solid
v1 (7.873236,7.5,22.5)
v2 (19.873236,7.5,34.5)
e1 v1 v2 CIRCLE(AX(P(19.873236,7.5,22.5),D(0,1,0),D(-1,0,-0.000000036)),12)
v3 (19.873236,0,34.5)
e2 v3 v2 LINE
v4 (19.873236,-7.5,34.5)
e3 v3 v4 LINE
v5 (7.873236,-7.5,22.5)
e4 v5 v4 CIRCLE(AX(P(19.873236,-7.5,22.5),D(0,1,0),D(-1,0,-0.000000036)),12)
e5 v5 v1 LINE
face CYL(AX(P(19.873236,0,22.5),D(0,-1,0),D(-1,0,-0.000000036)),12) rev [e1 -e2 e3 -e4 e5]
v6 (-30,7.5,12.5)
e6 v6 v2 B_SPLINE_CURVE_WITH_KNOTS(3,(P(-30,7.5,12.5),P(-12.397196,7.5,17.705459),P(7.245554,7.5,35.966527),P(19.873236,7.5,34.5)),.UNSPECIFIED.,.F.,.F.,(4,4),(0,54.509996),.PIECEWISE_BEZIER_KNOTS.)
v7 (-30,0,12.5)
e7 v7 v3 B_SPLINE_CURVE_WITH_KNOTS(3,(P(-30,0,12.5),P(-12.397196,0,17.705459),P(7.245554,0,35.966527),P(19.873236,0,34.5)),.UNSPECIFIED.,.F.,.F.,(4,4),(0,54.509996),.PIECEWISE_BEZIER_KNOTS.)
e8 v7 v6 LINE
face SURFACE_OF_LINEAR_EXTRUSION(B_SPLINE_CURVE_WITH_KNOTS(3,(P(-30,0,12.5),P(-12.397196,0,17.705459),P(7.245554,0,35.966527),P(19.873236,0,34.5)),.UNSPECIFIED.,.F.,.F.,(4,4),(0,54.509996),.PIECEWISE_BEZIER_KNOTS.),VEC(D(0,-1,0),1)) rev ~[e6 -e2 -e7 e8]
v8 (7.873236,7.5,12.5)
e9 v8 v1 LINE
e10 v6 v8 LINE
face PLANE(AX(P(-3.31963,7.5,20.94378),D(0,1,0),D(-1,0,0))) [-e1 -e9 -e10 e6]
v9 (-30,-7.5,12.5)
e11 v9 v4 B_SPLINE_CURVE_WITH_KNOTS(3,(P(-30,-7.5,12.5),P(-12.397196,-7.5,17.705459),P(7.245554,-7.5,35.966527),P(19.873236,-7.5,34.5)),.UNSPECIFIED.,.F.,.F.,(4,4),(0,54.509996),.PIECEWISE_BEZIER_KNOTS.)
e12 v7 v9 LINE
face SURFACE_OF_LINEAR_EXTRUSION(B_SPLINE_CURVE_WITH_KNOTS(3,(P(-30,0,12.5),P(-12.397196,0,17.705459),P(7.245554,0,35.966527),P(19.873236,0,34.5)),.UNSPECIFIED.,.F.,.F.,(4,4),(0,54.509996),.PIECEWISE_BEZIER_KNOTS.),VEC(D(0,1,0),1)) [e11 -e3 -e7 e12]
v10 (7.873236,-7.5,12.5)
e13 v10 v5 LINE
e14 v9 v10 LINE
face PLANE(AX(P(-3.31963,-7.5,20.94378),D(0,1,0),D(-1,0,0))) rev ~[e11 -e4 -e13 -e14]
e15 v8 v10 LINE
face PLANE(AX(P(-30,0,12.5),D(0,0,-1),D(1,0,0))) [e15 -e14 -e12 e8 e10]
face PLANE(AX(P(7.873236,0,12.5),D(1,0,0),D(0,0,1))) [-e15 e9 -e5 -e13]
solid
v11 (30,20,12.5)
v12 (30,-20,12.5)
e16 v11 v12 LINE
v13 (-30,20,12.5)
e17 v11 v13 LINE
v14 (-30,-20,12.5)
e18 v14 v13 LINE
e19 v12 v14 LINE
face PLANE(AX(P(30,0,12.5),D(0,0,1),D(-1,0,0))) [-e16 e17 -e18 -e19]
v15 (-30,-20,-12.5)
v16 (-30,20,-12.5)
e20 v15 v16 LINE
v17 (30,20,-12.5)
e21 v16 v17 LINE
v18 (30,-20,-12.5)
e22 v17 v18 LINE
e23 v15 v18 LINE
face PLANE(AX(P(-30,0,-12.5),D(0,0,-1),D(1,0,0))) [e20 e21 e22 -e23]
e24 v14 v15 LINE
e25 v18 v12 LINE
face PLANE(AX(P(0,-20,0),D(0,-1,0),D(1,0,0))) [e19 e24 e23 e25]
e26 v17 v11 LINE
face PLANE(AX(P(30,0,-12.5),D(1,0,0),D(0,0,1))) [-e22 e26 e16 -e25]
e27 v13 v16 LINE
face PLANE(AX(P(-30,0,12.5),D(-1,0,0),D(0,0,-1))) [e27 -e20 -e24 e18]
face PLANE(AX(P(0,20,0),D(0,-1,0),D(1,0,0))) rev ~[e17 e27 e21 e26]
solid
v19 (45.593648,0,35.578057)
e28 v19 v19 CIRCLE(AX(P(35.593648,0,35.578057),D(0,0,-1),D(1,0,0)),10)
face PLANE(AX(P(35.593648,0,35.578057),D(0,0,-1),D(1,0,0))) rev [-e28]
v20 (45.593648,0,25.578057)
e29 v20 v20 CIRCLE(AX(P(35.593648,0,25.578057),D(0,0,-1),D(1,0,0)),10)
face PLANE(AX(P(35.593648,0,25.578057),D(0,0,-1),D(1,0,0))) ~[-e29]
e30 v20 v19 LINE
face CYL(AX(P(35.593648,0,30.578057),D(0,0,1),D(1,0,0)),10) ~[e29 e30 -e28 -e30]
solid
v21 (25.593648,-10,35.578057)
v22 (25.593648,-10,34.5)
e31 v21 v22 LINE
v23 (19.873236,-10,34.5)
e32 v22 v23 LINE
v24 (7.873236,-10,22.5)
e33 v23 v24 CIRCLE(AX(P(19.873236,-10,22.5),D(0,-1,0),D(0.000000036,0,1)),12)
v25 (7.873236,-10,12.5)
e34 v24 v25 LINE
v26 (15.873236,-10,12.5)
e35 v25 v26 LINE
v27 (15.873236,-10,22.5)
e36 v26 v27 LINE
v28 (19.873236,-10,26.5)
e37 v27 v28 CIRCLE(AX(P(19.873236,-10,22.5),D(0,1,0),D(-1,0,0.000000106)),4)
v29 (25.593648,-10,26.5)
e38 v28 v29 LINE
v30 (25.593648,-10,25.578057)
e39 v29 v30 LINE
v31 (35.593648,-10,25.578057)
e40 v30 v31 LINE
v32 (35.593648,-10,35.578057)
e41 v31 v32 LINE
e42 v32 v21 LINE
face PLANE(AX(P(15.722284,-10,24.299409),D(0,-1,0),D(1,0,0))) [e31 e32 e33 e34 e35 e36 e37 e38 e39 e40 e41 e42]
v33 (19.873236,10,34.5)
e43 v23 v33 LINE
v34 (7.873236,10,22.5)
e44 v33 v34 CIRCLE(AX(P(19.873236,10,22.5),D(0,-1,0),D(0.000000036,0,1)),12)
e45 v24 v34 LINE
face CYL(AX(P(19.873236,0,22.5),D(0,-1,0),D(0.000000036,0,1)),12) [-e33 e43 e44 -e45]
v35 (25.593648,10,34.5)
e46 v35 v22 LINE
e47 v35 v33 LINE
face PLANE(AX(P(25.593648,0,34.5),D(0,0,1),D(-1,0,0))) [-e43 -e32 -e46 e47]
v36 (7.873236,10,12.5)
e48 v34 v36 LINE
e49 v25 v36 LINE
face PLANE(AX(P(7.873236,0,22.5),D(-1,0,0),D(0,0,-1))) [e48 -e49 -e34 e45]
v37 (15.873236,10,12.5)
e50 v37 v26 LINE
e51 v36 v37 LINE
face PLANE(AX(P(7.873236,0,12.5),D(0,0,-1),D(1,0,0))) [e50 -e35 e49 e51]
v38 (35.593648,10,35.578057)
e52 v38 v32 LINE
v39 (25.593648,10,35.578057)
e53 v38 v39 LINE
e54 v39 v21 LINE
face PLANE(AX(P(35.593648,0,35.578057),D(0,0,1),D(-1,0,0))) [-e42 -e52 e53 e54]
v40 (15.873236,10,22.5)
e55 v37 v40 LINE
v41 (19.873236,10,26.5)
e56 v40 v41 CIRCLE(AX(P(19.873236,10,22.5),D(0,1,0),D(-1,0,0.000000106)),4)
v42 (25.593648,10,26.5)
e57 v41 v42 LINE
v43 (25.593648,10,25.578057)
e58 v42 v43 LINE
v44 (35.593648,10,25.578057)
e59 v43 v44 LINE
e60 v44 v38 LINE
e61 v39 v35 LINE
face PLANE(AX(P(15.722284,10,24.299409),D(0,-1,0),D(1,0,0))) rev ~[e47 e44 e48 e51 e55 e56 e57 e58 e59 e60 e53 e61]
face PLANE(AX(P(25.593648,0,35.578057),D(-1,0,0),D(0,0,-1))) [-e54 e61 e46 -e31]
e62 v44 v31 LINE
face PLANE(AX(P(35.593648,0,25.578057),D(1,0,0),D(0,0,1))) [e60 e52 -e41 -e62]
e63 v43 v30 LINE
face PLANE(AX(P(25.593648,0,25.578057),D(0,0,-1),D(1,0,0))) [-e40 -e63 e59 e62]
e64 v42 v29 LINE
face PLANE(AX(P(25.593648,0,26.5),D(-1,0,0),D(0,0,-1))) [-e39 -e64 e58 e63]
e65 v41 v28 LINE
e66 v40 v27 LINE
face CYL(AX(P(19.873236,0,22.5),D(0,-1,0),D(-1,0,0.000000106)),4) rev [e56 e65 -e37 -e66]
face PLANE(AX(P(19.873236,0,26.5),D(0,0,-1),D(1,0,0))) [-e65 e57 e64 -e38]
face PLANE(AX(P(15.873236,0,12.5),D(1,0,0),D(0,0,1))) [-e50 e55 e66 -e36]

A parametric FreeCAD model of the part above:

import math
import FreeCAD as App
import Part
import Sketcher
Q = App.Units.Quantity

doc = App.newDocument("Part")
body = doc.addObject("PartDesign::Body", "Body")

# Sketch on XZ plane
sketch1 = body.newObject("Sketcher::SketchObject", "Sketch")
sketch1.AttachmentSupport = (doc.getObject("XZ_Plane"), [""])
sketch1.MapMode = "FlatFace"
sketch1.addGeometry(Part.LineSegment(App.Vector(-30, -12.5, 0), App.Vector(30, -12.5, 0)), False)
sketch1.addGeometry(Part.LineSegment(App.Vector(30, -12.5, 0), App.Vector(30, 12.5, 0)), False)
sketch1.addGeometry(Part.LineSegment(App.Vector(30, 12.5, 0), App.Vector(-30, 12.5, 0)), False)
sketch1.addGeometry(Part.LineSegment(App.Vector(-30, 12.5, 0), App.Vector(-30, -12.5, 0)), False)
sketch1.addConstraint(Sketcher.Constraint("Coincident", 0, 2, 1, 1))
sketch1.addConstraint(Sketcher.Constraint("Coincident", 1, 2, 2, 1))
sketch1.addConstraint(Sketcher.Constraint("Coincident", 2, 2, 3, 1))
sketch1.addConstraint(Sketcher.Constraint("Coincident", 3, 2, 0, 1))
sketch1.addConstraint(Sketcher.Constraint("Horizontal", 0))
sketch1.addConstraint(Sketcher.Constraint("Vertical", 1))
sketch1.addConstraint(Sketcher.Constraint("Horizontal", 2))
sketch1.addConstraint(Sketcher.Constraint("Vertical", 3))
sketch1.addConstraint(Sketcher.Constraint("Symmetric", 0, 2, 2, 2, -1, 1))
sketch1.addConstraint(Sketcher.Constraint("DistanceX", 0, 1, 0, 2, Q("60 mm")))
sketch1.addConstraint(Sketcher.Constraint("DistanceY", 1, 1, 1, 2, Q("25 mm")))
pad1 = body.newObject("PartDesign::Pad", "Pad")
pad1.Profile = sketch1
pad1.Length = 40
pad1.Midplane = True
body2 = doc.addObject("PartDesign::Body", "Body001")

# Sketch on XZ plane
sketch2 = body2.newObject("Sketcher::SketchObject", "Sketch001")
sketch2.AttachmentSupport = (doc.getObject("XZ_Plane001"), [""])
sketch2.MapMode = "FlatFace"
sketch2.addGeometry(Part.LineSegment(App.Vector(7.873236, 12.5, 0), App.Vector(15.873236, 12.5, 0)), False)
sketch2.addGeometry(Part.LineSegment(App.Vector(15.873236, 12.5, 0), App.Vector(15.873236, 22.5, 0)), False)
sketch2.addGeometry(Part.ArcOfCircle(Part.Circle(App.Vector(19.873236, 22.5, 0), App.Vector(0, 0, 1), 4), math.radians(90.000006), math.radians(179.999994)), False)
sketch2.addGeometry(Part.LineSegment(App.Vector(19.873236, 26.5, 0), App.Vector(25.593648, 26.5, 0)), False)
sketch2.addGeometry(Part.LineSegment(App.Vector(25.593648, 26.5, 0), App.Vector(25.593648, 25.578057, 0)), False)
sketch2.addGeometry(Part.LineSegment(App.Vector(25.593648, 25.578057, 0), App.Vector(35.593648, 25.578057, 0)), False)
sketch2.addGeometry(Part.LineSegment(App.Vector(35.593648, 25.578057, 0), App.Vector(35.593648, 35.578057, 0)), False)
sketch2.addGeometry(Part.LineSegment(App.Vector(35.593648, 35.578057, 0), App.Vector(25.593648, 35.578057, 0)), False)
sketch2.addGeometry(Part.LineSegment(App.Vector(25.593648, 35.578057, 0), App.Vector(25.593648, 34.5, 0)), False)
sketch2.addGeometry(Part.LineSegment(App.Vector(25.593648, 34.5, 0), App.Vector(19.873236, 34.5, 0)), False)
sketch2.addGeometry(Part.ArcOfCircle(Part.Circle(App.Vector(19.873236, 22.5, 0), App.Vector(0, 0, 1), 12), math.radians(89.999998), math.radians(180.000002)), False)
sketch2.addGeometry(Part.LineSegment(App.Vector(7.873236, 22.5, 0), App.Vector(7.873236, 12.5, 0)), False)
sketch2.addConstraint(Sketcher.Constraint("Coincident", 0, 2, 1, 1))
sketch2.addConstraint(Sketcher.Constraint("Tangent", 1, 2, 2, 2))
sketch2.addConstraint(Sketcher.Constraint("Tangent", 2, 1, 3, 1))
sketch2.addConstraint(Sketcher.Constraint("Coincident", 3, 2, 4, 1))
sketch2.addConstraint(Sketcher.Constraint("Coincident", 4, 2, 5, 1))
sketch2.addConstraint(Sketcher.Constraint("Coincident", 5, 2, 6, 1))
sketch2.addConstraint(Sketcher.Constraint("Coincident", 6, 2, 7, 1))
sketch2.addConstraint(Sketcher.Constraint("Coincident", 7, 2, 8, 1))
sketch2.addConstraint(Sketcher.Constraint("Coincident", 8, 2, 9, 1))
sketch2.addConstraint(Sketcher.Constraint("Tangent", 9, 2, 10, 1))
sketch2.addConstraint(Sketcher.Constraint("Tangent", 10, 2, 11, 1))
sketch2.addConstraint(Sketcher.Constraint("Coincident", 11, 2, 0, 1))
sketch2.addConstraint(Sketcher.Constraint("Horizontal", 0))
sketch2.addConstraint(Sketcher.Constraint("Vertical", 1))
sketch2.addConstraint(Sketcher.Constraint("Horizontal", 3))
sketch2.addConstraint(Sketcher.Constraint("Vertical", 4))
sketch2.addConstraint(Sketcher.Constraint("Horizontal", 5))
sketch2.addConstraint(Sketcher.Constraint("Vertical", 6))
sketch2.addConstraint(Sketcher.Constraint("Horizontal", 7))
sketch2.addConstraint(Sketcher.Constraint("Vertical", 8))
sketch2.addConstraint(Sketcher.Constraint("Horizontal", 9))
sketch2.addConstraint(Sketcher.Constraint("Vertical", 11))
sketch2.addConstraint(Sketcher.Constraint("Coincident", 10, 3, 2, 3))
sketch2.addConstraint(Sketcher.Constraint("Vertical", 4, 2, 7, 2))
sketch2.addConstraint(Sketcher.Constraint("Equal", 7, 1))
sketch2.addConstraint(Sketcher.Constraint("Equal", 1, 6))
sketch2.addConstraint(Sketcher.Constraint("Radius", 2, Q("4 mm")))
sketch2.addConstraint(Sketcher.Constraint("Radius", 10, Q("12 mm")))
sketch2.addConstraint(Sketcher.Constraint("DistanceX", 5, 1, 5, 2, Q("10 mm")))
sketch2.addConstraint(Sketcher.Constraint("DistanceY", -1, 1, 2, 3, Q("22.5 mm")))
sketch2.addConstraint(Sketcher.Constraint("DistanceX", 3, 1, 3, 2, Q("5.720412 mm")))
sketch2.addConstraint(Sketcher.Constraint("DistanceY", 4, 2, 4, 1, Q("0.921943 mm")))
sketch2.addConstraint(Sketcher.Constraint("DistanceX", -1, 1, 3, 2, Q("25.593648 mm")))
pad2 = body2.newObject("PartDesign::Pad", "Pad001")
pad2.Profile = sketch2
pad2.Length = 20
pad2.Midplane = True
body3 = doc.addObject("PartDesign::Body", "Body002")

# Sketch on XZ plane
sketch3 = body3.newObject("Sketcher::SketchObject", "Sketch002")
sketch3.AttachmentSupport = (doc.getObject("XZ_Plane002"), [""])
sketch3.MapMode = "FlatFace"
sketch3.addGeometry(Part.BSplineCurve([App.Vector(-30, 12.5, 0), App.Vector(-12.397196, 17.705459, 0), App.Vector(7.245554, 35.966527, 0), App.Vector(19.873236, 34.5, 0)], [4, 4], [0, 54.509996], False, 3, [1, 1, 1, 1], False), False)
sketch3.addGeometry(Part.LineSegment(App.Vector(-30, 12.5, 0), App.Vector(7.873236, 12.5, 0)), False)
sketch3.addGeometry(Part.LineSegment(App.Vector(7.873236, 12.5, 0), App.Vector(7.873236, 22.5, 0)), False)
sketch3.addGeometry(Part.ArcOfCircle(Part.Circle(App.Vector(19.873236, 22.5, 0), App.Vector(0, 0, 1), 12), math.radians(89.999998), math.radians(180.000002)), False)
sketch3.addConstraint(Sketcher.Constraint("Block", 0))
sketch3.addConstraint(Sketcher.Constraint("Coincident", 0, 1, 1, 1))
sketch3.addConstraint(Sketcher.Constraint("Coincident", 1, 2, 2, 1))
sketch3.addConstraint(Sketcher.Constraint("Tangent", 2, 2, 3, 2))
sketch3.addConstraint(Sketcher.Constraint("Coincident", 3, 1, 0, 2))
sketch3.addConstraint(Sketcher.Constraint("Horizontal", 1))
sketch3.addConstraint(Sketcher.Constraint("Vertical", 2))
sketch3.addConstraint(Sketcher.Constraint("Radius", 3, Q("12 mm")))
sketch3.addConstraint(Sketcher.Constraint("DistanceX", 2, 2, 3, 1, Q("12 mm")))
pad3 = body3.newObject("PartDesign::Pad", "Pad002")
pad3.Profile = sketch3
pad3.Length = 15
pad3.Midplane = True
body4 = doc.addObject("PartDesign::Body", "Body003")

# Sketch on XZ plane
sketch4 = body4.newObject("Sketcher::SketchObject", "Sketch003")
sketch4.AttachmentSupport = (doc.getObject("XZ_Plane003"), [""])
sketch4.MapMode = "FlatFace"
sketch4.addGeometry(Part.LineSegment(App.Vector(35.593648, 35.578057, 0), App.Vector(35.593648, 25.578057, 0)), False)
sketch4.addGeometry(Part.LineSegment(App.Vector(35.593648, 25.578057, 0), App.Vector(45.593648, 25.578057, 0)), False)
sketch4.addGeometry(Part.LineSegment(App.Vector(45.593648, 25.578057, 0), App.Vector(45.593648, 35.578057, 0)), False)
sketch4.addGeometry(Part.LineSegment(App.Vector(45.593648, 35.578057, 0), App.Vector(35.593648, 35.578057, 0)), False)
sketch4.addGeometry(Part.LineSegment(App.Vector(35.593648, 35.578057, 0), App.Vector(35.593648, 25.578057, 0)), True)  # axis
sketch4.addConstraint(Sketcher.Constraint("Coincident", 0, 2, 1, 1))
sketch4.addConstraint(Sketcher.Constraint("Coincident", 1, 2, 2, 1))
sketch4.addConstraint(Sketcher.Constraint("Coincident", 2, 2, 3, 1))
sketch4.addConstraint(Sketcher.Constraint("Coincident", 3, 2, 0, 1))
sketch4.addConstraint(Sketcher.Constraint("Vertical", 0))
sketch4.addConstraint(Sketcher.Constraint("Horizontal", 1))
sketch4.addConstraint(Sketcher.Constraint("Vertical", 2))
sketch4.addConstraint(Sketcher.Constraint("Horizontal", 3))
sketch4.addConstraint(Sketcher.Constraint("Vertical", 4))
sketch4.addConstraint(Sketcher.Constraint("Coincident", 4, 1, 3, 2))
sketch4.addConstraint(Sketcher.Constraint("Horizontal", 1, 2, 4, 2))
sketch4.addConstraint(Sketcher.Constraint("Equal", 3, 0))
sketch4.addConstraint(Sketcher.Constraint("DistanceX", 1, 1, 1, 2, Q("10 mm")))
sketch4.addConstraint(Sketcher.Constraint("DistanceX", -1, 1, 0, 2, Q("35.593648 mm")))
sketch4.addConstraint(Sketcher.Constraint("DistanceY", -1, 1, 0, 2, Q("25.578057 mm")))
revolution = body4.newObject("PartDesign::Revolution", "Revolution")
revolution.Profile = sketch4
revolution.ReferenceAxis = (sketch4, ["Axis0"])
revolution.Angle = 360

doc.recompute()
